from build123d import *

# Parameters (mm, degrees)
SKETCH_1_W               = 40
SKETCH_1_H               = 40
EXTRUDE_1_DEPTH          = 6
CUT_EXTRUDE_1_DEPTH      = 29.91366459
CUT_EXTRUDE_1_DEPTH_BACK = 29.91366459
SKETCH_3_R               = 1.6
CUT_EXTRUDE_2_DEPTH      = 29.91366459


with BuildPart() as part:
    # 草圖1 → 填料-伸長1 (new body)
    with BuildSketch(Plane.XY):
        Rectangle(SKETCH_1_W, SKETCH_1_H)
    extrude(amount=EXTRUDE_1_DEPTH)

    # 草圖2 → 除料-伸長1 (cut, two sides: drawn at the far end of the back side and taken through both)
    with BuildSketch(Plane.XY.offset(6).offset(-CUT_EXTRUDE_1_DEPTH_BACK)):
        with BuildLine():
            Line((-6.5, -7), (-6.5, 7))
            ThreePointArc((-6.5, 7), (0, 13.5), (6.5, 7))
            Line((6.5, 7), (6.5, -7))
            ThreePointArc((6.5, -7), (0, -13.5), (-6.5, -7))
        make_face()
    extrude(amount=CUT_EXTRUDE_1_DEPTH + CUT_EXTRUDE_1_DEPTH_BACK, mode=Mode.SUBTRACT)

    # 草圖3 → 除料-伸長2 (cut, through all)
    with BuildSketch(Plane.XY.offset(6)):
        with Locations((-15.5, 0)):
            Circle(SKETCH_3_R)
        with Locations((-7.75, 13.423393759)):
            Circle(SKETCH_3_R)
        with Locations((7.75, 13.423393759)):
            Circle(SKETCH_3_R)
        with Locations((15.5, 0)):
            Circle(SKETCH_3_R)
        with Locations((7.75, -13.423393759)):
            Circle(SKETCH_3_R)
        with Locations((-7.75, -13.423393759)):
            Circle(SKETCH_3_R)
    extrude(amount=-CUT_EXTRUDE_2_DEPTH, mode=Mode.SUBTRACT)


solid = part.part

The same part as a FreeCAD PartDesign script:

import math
import FreeCAD as App
import Part
import Sketcher
from FreeCAD import Vector
Q = App.Units.Quantity

doc = App.newDocument("Part")
body = doc.addObject("PartDesign::Body", "Body")

sketch1 = body.newObject("Sketcher::SketchObject", "Sketch")
sketch1.AttachmentSupport = (doc.getObject("XY_Plane"), [""])
sketch1.MapMode = "FlatFace"
sketch1.addGeometry(Part.LineSegment(Vector(-20, 20, 0), Vector(-20, -20, 0)), False)
sketch1.addGeometry(Part.LineSegment(Vector(-20, -20, 0), Vector(20, -20, 0)), False)
sketch1.addGeometry(Part.LineSegment(Vector(20, -20, 0), Vector(20, 20, 0)), False)
sketch1.addGeometry(Part.LineSegment(Vector(20, 20, 0), Vector(-20, 20, 0)), False)
sketch1.addConstraint(Sketcher.Constraint("Coincident", 0, 2, 1, 1))
sketch1.addConstraint(Sketcher.Constraint("Coincident", 1, 2, 2, 1))
sketch1.addConstraint(Sketcher.Constraint("Coincident", 2, 2, 3, 1))
sketch1.addConstraint(Sketcher.Constraint("Coincident", 3, 2, 0, 1))
sketch1.addConstraint(Sketcher.Constraint("Vertical", 0))
sketch1.addConstraint(Sketcher.Constraint("Horizontal", 1))
sketch1.addConstraint(Sketcher.Constraint("Vertical", 2))
sketch1.addConstraint(Sketcher.Constraint("Horizontal", 3))
sketch1.addConstraint(Sketcher.Constraint("Symmetric", 0, 2, 2, 2, -1, 1))
sketch1.addConstraint(Sketcher.Constraint("Equal", 3, 0))
sketch1.addConstraint(Sketcher.Constraint("DistanceX", 1, 1, 1, 2, Q("40 mm")))
pad1 = body.newObject("PartDesign::Pad", "Pad")
pad1.Profile = sketch1
pad1.Length = 6

sketch2 = body.newObject("Sketcher::SketchObject", "Sketch001")
sketch2.AttachmentSupport = (doc.getObject("XY_Plane"), [""])
sketch2.MapMode = "FlatFace"
sketch2.AttachmentOffset = App.Placement(Vector(0, 0, 6), App.Rotation())
sketch2.addGeometry(Part.LineSegment(Vector(-6, 7, 0), Vector(-6, -7, 0)), False)
sketch2.addGeometry(Part.ArcOfCircle(Part.Circle(Vector(0, -7, 0), Vector(0, 0, 1), 6), math.radians(180), math.radians(360)), False)
sketch2.addGeometry(Part.LineSegment(Vector(6, -7, 0), Vector(6, 7, 0)), False)
sketch2.addGeometry(Part.ArcOfCircle(Part.Circle(Vector(0, 7, 0), Vector(0, 0, 1), 6), math.radians(0), math.radians(180)), False)
sketch2.addConstraint(Sketcher.Constraint("Tangent", 0, 2, 1, 1))
sketch2.addConstraint(Sketcher.Constraint("Tangent", 1, 2, 2, 1))
sketch2.addConstraint(Sketcher.Constraint("Tangent", 2, 2, 3, 1))
sketch2.addConstraint(Sketcher.Constraint("Tangent", 3, 2, 0, 1))
sketch2.addConstraint(Sketcher.Constraint("Vertical", 0))
sketch2.addConstraint(Sketcher.Constraint("Vertical", 2))
sketch2.addConstraint(Sketcher.Constraint("Symmetric", 1, 3, 3, 3, -1, 1))
sketch2.addConstraint(Sketcher.Constraint("Radius", 1, Q("6.5 mm")))
sketch2.addConstraint(Sketcher.Constraint("DistanceY", 0, 2, 0, 1, Q("14 mm")))
pocket1 = body.newObject("PartDesign::Pocket", "Pocket")
pocket1.Profile = sketch2
pocket1.Type = "ThroughAll"
pocket1.Midplane = True

sketch3 = body.newObject("Sketcher::SketchObject", "Sketch002")
sketch3.AttachmentSupport = (doc.getObject("XY_Plane"), [""])
sketch3.MapMode = "FlatFace"
sketch3.AttachmentOffset = App.Placement(Vector(0, 0, 6), App.Rotation())
sketch3.addGeometry(Part.Circle(Vector(-15.5, 0, 0), Vector(0, 0, 1), 1.6), False)
sketch3.addGeometry(Part.Circle(Vector(-7.8, 13.4, 0), Vector(0, 0, 1), 1.6), False)
sketch3.addGeometry(Part.Circle(Vector(7.8, 13.4, 0), Vector(0, 0, 1), 1.6), False)
sketch3.addGeometry(Part.Circle(Vector(15.5, 0, 0), Vector(0, 0, 1), 1.6), False)
sketch3.addGeometry(Part.Circle(Vector(7.8, -13.4, 0), Vector(0, 0, 1), 1.6), False)
sketch3.addGeometry(Part.Circle(Vector(-7.8, -13.4, 0), Vector(0, 0, 1), 1.6), False)
sketch3.addConstraint(Sketcher.Constraint("Equal", 0, 1))
sketch3.addConstraint(Sketcher.Constraint("Equal", 1, 2))
sketch3.addConstraint(Sketcher.Constraint("Equal", 2, 3))
sketch3.addConstraint(Sketcher.Constraint("Equal", 3, 4))
sketch3.addConstraint(Sketcher.Constraint("Equal", 4, 5))
sketch3.addConstraint(Sketcher.Constraint("Symmetric", 0, 3, 3, 3, -1, 1))
sketch3.addConstraint(Sketcher.Constraint("Symmetric", 1, 3, 4, 3, -1, 1))
sketch3.addConstraint(Sketcher.Constraint("Symmetric", 2, 3, 5, 3, -1, 1))
sketch3.addConstraint(Sketcher.Constraint("Symmetric", 1, 3, 2, 3, -2))
sketch3.addConstraint(Sketcher.Constraint("PointOnObject", 0, 3, -1))
sketch3.addConstraint(Sketcher.Constraint("Diameter", 0, Q("3.2 mm")))
sketch3.addConstraint(Sketcher.Constraint("DistanceX", 0, 3, 3, 3, Q("31 mm")))
sketch3.addConstraint(Sketcher.Constraint("DistanceX", 1, 3, 2, 3, Q("15.5 mm")))
sketch3.addConstraint(Sketcher.Constraint("DistanceY", -1, 1, 1, 3, Q("13.423394 mm")))
pocket2 = body.newObject("PartDesign::Pocket", "Pocket001")
pocket2.Profile = sketch3
pocket2.Type = "ThroughAll"

doc.recompute()
